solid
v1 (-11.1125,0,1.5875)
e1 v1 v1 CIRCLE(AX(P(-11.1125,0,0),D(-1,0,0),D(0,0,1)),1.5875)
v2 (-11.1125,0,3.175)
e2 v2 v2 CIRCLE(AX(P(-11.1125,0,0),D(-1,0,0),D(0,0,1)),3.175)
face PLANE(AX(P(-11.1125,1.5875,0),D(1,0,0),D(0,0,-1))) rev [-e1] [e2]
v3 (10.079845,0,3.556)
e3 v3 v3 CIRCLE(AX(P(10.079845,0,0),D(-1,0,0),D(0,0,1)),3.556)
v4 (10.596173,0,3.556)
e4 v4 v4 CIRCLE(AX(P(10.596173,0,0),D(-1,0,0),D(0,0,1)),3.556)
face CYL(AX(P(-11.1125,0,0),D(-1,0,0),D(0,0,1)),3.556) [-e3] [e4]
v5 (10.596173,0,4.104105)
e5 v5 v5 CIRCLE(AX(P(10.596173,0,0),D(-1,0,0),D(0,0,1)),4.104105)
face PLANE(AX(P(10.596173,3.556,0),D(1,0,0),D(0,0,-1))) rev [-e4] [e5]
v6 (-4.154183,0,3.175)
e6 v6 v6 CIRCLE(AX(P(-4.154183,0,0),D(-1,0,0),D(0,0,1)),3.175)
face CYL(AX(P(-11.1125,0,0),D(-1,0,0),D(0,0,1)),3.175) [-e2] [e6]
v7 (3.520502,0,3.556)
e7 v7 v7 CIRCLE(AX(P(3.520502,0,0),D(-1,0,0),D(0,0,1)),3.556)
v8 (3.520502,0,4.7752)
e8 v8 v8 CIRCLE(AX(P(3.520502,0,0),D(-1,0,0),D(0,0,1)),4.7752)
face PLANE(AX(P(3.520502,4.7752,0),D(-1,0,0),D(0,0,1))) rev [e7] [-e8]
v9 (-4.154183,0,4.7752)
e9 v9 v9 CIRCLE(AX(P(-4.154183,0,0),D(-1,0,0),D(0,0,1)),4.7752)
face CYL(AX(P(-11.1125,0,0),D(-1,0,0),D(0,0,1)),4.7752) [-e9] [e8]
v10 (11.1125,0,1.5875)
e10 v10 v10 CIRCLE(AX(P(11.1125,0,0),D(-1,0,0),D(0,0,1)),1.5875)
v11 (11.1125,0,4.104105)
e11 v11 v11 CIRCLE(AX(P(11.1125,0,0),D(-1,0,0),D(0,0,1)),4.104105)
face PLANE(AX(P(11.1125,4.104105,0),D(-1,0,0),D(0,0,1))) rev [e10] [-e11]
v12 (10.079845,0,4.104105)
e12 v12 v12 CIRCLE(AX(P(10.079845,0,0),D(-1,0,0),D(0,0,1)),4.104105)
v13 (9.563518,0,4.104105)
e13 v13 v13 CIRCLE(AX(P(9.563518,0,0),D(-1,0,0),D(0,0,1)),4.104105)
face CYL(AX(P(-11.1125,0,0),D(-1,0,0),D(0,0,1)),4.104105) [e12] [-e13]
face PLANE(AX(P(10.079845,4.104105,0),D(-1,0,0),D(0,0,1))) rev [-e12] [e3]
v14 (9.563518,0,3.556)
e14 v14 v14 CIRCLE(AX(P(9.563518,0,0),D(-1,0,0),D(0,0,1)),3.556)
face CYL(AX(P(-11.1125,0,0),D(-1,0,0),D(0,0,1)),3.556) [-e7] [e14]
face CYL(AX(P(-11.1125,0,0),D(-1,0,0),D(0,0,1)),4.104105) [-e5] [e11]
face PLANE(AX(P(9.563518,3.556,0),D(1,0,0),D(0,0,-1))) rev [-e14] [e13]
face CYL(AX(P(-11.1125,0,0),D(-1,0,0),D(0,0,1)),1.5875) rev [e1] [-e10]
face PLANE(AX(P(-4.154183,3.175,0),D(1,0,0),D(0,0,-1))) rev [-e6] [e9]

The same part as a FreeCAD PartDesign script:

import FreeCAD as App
import Part
import Sketcher
Q = App.Units.Quantity


def add_polygon(sketch, points):
    """Adds a closed chain of lines whose ends are joined by coincident constraints."""
    first, n = sketch.GeometryCount, len(points)
    for a, b in zip(points, points[1:] + points[:1]):
        sketch.addGeometry(Part.LineSegment(App.Vector(*a, 0), App.Vector(*b, 0)), False)
    for i in range(n):
        sketch.addConstraint(Sketcher.Constraint("Coincident", first + i, 2, first + (i + 1) % n, 1))

doc = App.newDocument("Part")
body = doc.addObject("PartDesign::Body", "Body")

sketch1 = body.newObject("Sketcher::SketchObject", "Sketch")
sketch1.AttachmentSupport = (doc.getObject("XY_Plane"), [""])
sketch1.MapMode = "FlatFace"
add_polygon(sketch1, [(-11.1125, 3.175), (-11.1125, 1.5875), (11.1125, 1.5875), (11.1125, 4.104105), (10.596173, 4.104105), (10.596173, 3.556), (10.079845, 3.556), (10.079845, 4.104105), (9.563518, 4.104105), (9.563518, 3.556), (3.520502, 3.556), (3.520502, 4.7752), (-4.154183, 4.7752), (-4.154183, 3.175)])
sketch1.addConstraint([
    Sketcher.Constraint("Vertical", 0),
    Sketcher.Constraint("Horizontal", 1),
    Sketcher.Constraint("Vertical", 2),
    Sketcher.Constraint("Horizontal", 3),
    Sketcher.Constraint("Vertical", 4),
    Sketcher.Constraint("Horizontal", 5),
    Sketcher.Constraint("Vertical", 6),
    Sketcher.Constraint("Horizontal", 7),
    Sketcher.Constraint("Vertical", 8),
    Sketcher.Constraint("Horizontal", 9),
    Sketcher.Constraint("Vertical", 10),
    Sketcher.Constraint("Horizontal", 11),
    Sketcher.Constraint("Vertical", 12),
    Sketcher.Constraint("Horizontal", 13),
    Sketcher.Constraint("Horizontal", 3, 2, 6, 2),
    Sketcher.Constraint("Horizontal", 5, 2, 8, 2),
    Sketcher.Constraint("Equal", 3, 5),
    Sketcher.Constraint("Equal", 5, 7),
    Sketcher.Constraint("DistanceX", 1, 1, 1, 2, Q("0.875 in")),
    Sketcher.Constraint("DistanceY", 0, 2, 0, 1, Q("0.0625 in")),
    Sketcher.Constraint("DistanceY", 10, 1, 10, 2, Q("0.048 in")),
    Sketcher.Constraint("DistanceY", 12, 2, 12, 1, Q("0.063 in")),
    Sketcher.Constraint("DistanceY", -1, 1, 4, 2, Q("0.14 in")),
    Sketcher.Constraint("DistanceX", 0, 2, -1, 1, Q("0.4375 in")),
    Sketcher.Constraint("DistanceX", -1, 1, 9, 2, 3.520502),
    Sketcher.Constraint("DistanceX", 11, 2, 7, 2, 13.717701),
    Sketcher.Constraint("DistanceX", 3, 2, 3, 1, 0.516327),
    Sketcher.Constraint("DistanceY", 2, 1, 2, 2, 2.516605),
])
revolution = body.newObject("PartDesign::Revolution", "Revolution")
revolution.Profile = sketch1
revolution.ReferenceAxis = (sketch1, ["H_Axis"])
revolution.Angle = 360

doc.recompute()
